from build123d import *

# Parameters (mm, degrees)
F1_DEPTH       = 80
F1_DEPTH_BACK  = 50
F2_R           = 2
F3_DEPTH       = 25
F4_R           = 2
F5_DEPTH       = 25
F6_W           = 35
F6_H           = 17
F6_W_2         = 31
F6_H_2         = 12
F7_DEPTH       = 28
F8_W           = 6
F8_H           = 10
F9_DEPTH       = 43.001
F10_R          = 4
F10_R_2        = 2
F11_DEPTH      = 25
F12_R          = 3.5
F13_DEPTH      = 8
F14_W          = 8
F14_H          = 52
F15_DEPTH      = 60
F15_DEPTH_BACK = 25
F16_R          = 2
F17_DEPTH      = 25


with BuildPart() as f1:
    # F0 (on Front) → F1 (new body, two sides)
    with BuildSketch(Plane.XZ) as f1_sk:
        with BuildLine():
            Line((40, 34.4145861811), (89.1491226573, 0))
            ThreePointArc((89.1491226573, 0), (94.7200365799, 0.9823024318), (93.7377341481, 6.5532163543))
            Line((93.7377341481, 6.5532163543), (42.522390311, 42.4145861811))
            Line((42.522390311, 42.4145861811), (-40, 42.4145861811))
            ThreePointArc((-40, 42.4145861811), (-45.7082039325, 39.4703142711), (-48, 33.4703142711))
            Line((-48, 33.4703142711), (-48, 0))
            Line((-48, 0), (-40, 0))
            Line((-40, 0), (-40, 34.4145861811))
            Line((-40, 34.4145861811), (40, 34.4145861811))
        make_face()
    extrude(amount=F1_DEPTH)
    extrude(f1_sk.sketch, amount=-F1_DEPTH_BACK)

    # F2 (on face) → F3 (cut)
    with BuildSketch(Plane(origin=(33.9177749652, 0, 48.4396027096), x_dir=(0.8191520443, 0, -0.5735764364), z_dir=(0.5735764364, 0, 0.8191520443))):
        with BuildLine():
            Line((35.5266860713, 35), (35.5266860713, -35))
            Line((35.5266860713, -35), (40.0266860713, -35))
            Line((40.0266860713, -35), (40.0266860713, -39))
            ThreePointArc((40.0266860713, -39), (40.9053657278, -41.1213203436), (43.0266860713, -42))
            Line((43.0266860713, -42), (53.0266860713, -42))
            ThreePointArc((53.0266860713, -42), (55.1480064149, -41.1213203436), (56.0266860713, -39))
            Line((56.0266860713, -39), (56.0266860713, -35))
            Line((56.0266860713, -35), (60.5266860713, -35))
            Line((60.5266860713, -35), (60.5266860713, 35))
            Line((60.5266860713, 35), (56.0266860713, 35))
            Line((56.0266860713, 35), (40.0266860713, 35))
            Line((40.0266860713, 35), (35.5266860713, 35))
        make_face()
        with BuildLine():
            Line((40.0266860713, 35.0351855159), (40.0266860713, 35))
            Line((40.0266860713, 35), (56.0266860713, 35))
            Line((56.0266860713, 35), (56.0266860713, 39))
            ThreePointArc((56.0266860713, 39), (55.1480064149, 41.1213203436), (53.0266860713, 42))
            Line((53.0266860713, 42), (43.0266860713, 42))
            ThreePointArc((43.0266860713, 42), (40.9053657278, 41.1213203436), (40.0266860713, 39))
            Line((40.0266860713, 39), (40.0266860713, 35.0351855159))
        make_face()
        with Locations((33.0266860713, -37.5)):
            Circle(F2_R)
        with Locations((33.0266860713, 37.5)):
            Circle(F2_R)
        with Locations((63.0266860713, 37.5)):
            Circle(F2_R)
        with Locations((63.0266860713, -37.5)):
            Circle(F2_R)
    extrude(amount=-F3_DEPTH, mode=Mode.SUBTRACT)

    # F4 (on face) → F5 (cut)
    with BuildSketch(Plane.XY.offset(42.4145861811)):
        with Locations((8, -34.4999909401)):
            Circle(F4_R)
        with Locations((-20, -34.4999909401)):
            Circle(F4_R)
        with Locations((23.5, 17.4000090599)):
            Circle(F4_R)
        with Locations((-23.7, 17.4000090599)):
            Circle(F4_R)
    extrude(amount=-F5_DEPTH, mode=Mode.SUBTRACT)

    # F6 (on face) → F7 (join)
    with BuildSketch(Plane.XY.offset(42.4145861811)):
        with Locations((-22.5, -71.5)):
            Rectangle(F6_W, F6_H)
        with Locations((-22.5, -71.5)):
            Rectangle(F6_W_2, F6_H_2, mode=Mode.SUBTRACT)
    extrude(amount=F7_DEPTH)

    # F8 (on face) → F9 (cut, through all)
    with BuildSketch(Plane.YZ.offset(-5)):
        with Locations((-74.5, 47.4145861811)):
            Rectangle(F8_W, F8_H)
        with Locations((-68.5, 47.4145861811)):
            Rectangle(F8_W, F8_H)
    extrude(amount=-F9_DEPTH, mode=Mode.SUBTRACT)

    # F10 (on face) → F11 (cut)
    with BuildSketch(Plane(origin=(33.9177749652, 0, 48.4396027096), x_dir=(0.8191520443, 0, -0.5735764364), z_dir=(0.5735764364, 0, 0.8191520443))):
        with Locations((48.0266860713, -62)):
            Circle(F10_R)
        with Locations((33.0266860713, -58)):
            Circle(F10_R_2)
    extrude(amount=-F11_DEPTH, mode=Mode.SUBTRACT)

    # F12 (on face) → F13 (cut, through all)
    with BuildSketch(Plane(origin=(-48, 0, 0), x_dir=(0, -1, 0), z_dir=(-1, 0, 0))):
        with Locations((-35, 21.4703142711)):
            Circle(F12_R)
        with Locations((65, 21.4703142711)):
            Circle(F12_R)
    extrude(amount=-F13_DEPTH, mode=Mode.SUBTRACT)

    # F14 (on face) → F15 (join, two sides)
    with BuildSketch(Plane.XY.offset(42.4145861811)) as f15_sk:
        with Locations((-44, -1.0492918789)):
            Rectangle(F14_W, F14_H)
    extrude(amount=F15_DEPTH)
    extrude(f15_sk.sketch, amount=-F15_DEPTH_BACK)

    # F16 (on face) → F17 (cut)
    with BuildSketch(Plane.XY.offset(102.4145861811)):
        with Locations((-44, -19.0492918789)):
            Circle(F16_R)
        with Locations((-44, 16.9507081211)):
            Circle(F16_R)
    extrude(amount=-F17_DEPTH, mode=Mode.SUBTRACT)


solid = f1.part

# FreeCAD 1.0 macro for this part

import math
import FreeCAD as App
import Part
import Sketcher
Q = App.Units.Quantity


def add_polygon(sketch, points):
    """Adds a closed chain of lines whose ends are joined by coincident constraints."""
    first, n = sketch.GeometryCount, len(points)
    for a, b in zip(points, points[1:] + points[:1]):
        sketch.addGeometry(Part.LineSegment(App.Vector(*a, 0), App.Vector(*b, 0)), False)
    for i in range(n):
        sketch.addConstraint(Sketcher.Constraint("Coincident", first + i, 2, first + (i + 1) % n, 1))

doc = App.newDocument("Part")
body = doc.addObject("PartDesign::Body", "Body")

sketch1 = body.newObject("Sketcher::SketchObject", "Sketch")
sketch1.AttachmentSupport = (doc.getObject("XZ_Plane"), [""])
sketch1.MapMode = "FlatFace"
sketch1.addGeometry(Part.LineSegment(App.Vector(40, 34.414586, 0), App.Vector(89.149123, 0, 0)), False)
sketch1.addGeometry(Part.ArcOfCircle(Part.Circle(App.Vector(91.443428, 3.276608, 0), App.Vector(0, 0, 1), 4), math.radians(-125), math.radians(55)), False)
sketch1.addGeometry(Part.LineSegment(App.Vector(93.737734, 6.553216, 0), App.Vector(42.52239, 42.414586, 0)), False)
sketch1.addGeometry(Part.LineSegment(App.Vector(42.52239, 42.414586, 0), App.Vector(-40, 42.414586, 0)), False)
sketch1.addGeometry(Part.ArcOfCircle(Part.Circle(App.Vector(-39, 33.470314, 0), App.Vector(0, 0, 1), 9), math.radians(96.37937), math.radians(180)), False)
sketch1.addGeometry(Part.LineSegment(App.Vector(-48, 33.470314, 0), App.Vector(-48, 0, 0)), False)
sketch1.addGeometry(Part.LineSegment(App.Vector(-48, 0, 0), App.Vector(-40, 0, 0)), False)
sketch1.addGeometry(Part.LineSegment(App.Vector(-40, 0, 0), App.Vector(-40, 34.414586, 0)), False)
sketch1.addGeometry(Part.LineSegment(App.Vector(-40, 34.414586, 0), App.Vector(40, 34.414586, 0)), False)
sketch1.addConstraint(Sketcher.Constraint("Tangent", 0, 2, 1, 1))
sketch1.addConstraint(Sketcher.Constraint("Tangent", 1, 2, 2, 1))
sketch1.addConstraint(Sketcher.Constraint("Coincident", 2, 2, 3, 1))
sketch1.addConstraint(Sketcher.Constraint("Coincident", 3, 2, 4, 1))
sketch1.addConstraint(Sketcher.Constraint("Tangent", 4, 2, 5, 1))
sketch1.addConstraint(Sketcher.Constraint("Coincident", 5, 2, 6, 1))
sketch1.addConstraint(Sketcher.Constraint("Coincident", 6, 2, 7, 1))
sketch1.addConstraint(Sketcher.Constraint("Coincident", 7, 2, 8, 1))
sketch1.addConstraint(Sketcher.Constraint("Coincident", 8, 2, 0, 1))
sketch1.addConstraint(Sketcher.Constraint("Horizontal", 3))
sketch1.addConstraint(Sketcher.Constraint("Vertical", 5))
sketch1.addConstraint(Sketcher.Constraint("Horizontal", 6))
sketch1.addConstraint(Sketcher.Constraint("Vertical", 7))
sketch1.addConstraint(Sketcher.Constraint("Horizontal", 8))
sketch1.addConstraint(Sketcher.Constraint("PointOnObject", 0, 2, -1))
sketch1.addConstraint(Sketcher.Constraint("PointOnObject", 5, 2, -1))
sketch1.addConstraint(Sketcher.Constraint("Parallel", 0, 2))
sketch1.addConstraint(Sketcher.Constraint("Vertical", 3, 2, 6, 2))
sketch1.addConstraint(Sketcher.Constraint("Radius", 1, 4.0))
sketch1.addConstraint(Sketcher.Constraint("Radius", 4, 9.0))
sketch1.addConstraint(Sketcher.Constraint("DistanceX", 6, 1, 6, 2, 8.0))
sketch1.addConstraint(Sketcher.Constraint("DistanceX", 8, 1, 8, 2, 80.0))
sketch1.addConstraint(Sketcher.Constraint("Angle", 0, Q("-35 deg")))
sketch1.addConstraint(Sketcher.Constraint("Distance", 0, 60.0))
sketch1.addConstraint(Sketcher.Constraint("DistanceX", 4, 3, -1, 1, 39.0))
sketch1.addConstraint(Sketcher.Constraint("DistanceY", 7, 2, 3, 2, 8.0))
pad1 = body.newObject("PartDesign::Pad", "Pad")
pad1.Profile = sketch1
pad1.Type = "TwoLengths"
pad1.Length = 80
pad1.Length2 = 50

sketch2 = body.newObject("Sketcher::SketchObject", "Sketch001")
sketch2.Placement = App.Placement(App.Vector(33.917775, 0, 48.439603), App.Rotation(App.Vector(0.819152044, 0, -0.573576436), App.Vector(0, 0.999999999, 0), App.Vector(0.573576436, 0, 0.819152044), "ZXY"))
sketch2.addGeometry(Part.LineSegment(App.Vector(35.526686, 35, 0), App.Vector(35.526686, -35, 0)), False)
sketch2.addGeometry(Part.LineSegment(App.Vector(35.526686, -35, 0), App.Vector(40.026686, -35, 0)), False)
sketch2.addGeometry(Part.LineSegment(App.Vector(40.026686, -35, 0), App.Vector(40.026686, -39, 0)), False)
sketch2.addGeometry(Part.ArcOfCircle(Part.Circle(App.Vector(43.026686, -39, 0), App.Vector(0, 0, 1), 3), math.radians(180), math.radians(270)), False)
sketch2.addGeometry(Part.LineSegment(App.Vector(43.026686, -42, 0), App.Vector(53.026686, -42, 0)), False)
sketch2.addGeometry(Part.ArcOfCircle(Part.Circle(App.Vector(53.026686, -39, 0), App.Vector(0, 0, 1), 3), math.radians(-90), math.radians(0)), False)
sketch2.addGeometry(Part.LineSegment(App.Vector(56.026686, -39, 0), App.Vector(56.026686, -35, 0)), False)
sketch2.addGeometry(Part.LineSegment(App.Vector(56.026686, -35, 0), App.Vector(60.526686, -35, 0)), False)
sketch2.addGeometry(Part.LineSegment(App.Vector(60.526686, -35, 0), App.Vector(60.526686, 35, 0)), False)
sketch2.addGeometry(Part.LineSegment(App.Vector(60.526686, 35, 0), App.Vector(56.026686, 35, 0)), False)
sketch2.addGeometry(Part.LineSegment(App.Vector(56.026686, 35, 0), App.Vector(56.026686, 39, 0)), False)
sketch2.addGeometry(Part.ArcOfCircle(Part.Circle(App.Vector(53.026686, 39, 0), App.Vector(0, 0, 1), 3), math.radians(0), math.radians(90)), False)
sketch2.addGeometry(Part.LineSegment(App.Vector(53.026686, 42, 0), App.Vector(43.026686, 42, 0)), False)
sketch2.addGeometry(Part.ArcOfCircle(Part.Circle(App.Vector(43.026686, 39, 0), App.Vector(0, 0, 1), 3), math.radians(90), math.radians(180)), False)
sketch2.addGeometry(Part.LineSegment(App.Vector(40.026686, 39, 0), App.Vector(40.026686, 35, 0)), False)
sketch2.addGeometry(Part.LineSegment(App.Vector(40.026686, 35, 0), App.Vector(35.526686, 35, 0)), False)
sketch2.addGeometry(Part.Circle(App.Vector(33.026686, -37.5, 0), App.Vector(0, 0, 1), 2), False)
sketch2.addGeometry(Part.Circle(App.Vector(33.026686, 37.5, 0), App.Vector(0, 0, 1), 2), False)
sketch2.addGeometry(Part.Circle(App.Vector(63.026686, 37.5, 0), App.Vector(0, 0, 1), 2), False)
sketch2.addGeometry(Part.Circle(App.Vector(63.026686, -37.5, 0), App.Vector(0, 0, 1), 2), False)
sketch2.addConstraint(Sketcher.Constraint("Coincident", 0, 2, 1, 1))
sketch2.addConstraint(Sketcher.Constraint("Coincident", 1, 2, 2, 1))
sketch2.addConstraint(Sketcher.Constraint("Tangent", 2, 2, 3, 1))
sketch2.addConstraint(Sketcher.Constraint("Tangent", 3, 2, 4, 1))
sketch2.addConstraint(Sketcher.Constraint("Tangent", 4, 2, 5, 1))
sketch2.addConstraint(Sketcher.Constraint("Tangent", 5, 2, 6, 1))
sketch2.addConstraint(Sketcher.Constraint("Coincident", 6, 2, 7, 1))
sketch2.addConstraint(Sketcher.Constraint("Coincident", 7, 2, 8, 1))
sketch2.addConstraint(Sketcher.Constraint("Coincident", 8, 2, 9, 1))
sketch2.addConstraint(Sketcher.Constraint("Coincident", 9, 2, 10, 1))
sketch2.addConstraint(Sketcher.Constraint("Tangent", 10, 2, 11, 1))
sketch2.addConstraint(Sketcher.Constraint("Tangent", 11, 2, 12, 1))
sketch2.addConstraint(Sketcher.Constraint("Tangent", 12, 2, 13, 1))
sketch2.addConstraint(Sketcher.Constraint("Tangent", 13, 2, 14, 1))
sketch2.addConstraint(Sketcher.Constraint("Coincident", 14, 2, 15, 1))
sketch2.addConstraint(Sketcher.Constraint("Coincident", 15, 2, 0, 1))
sketch2.addConstraint(Sketcher.Constraint("Vertical", 0))
sketch2.addConstraint(Sketcher.Constraint("Horizontal", 1))
sketch2.addConstraint(Sketcher.Constraint("Vertical", 2))
sketch2.addConstraint(Sketcher.Constraint("Horizontal", 4))
sketch2.addConstraint(Sketcher.Constraint("Vertical", 6))
sketch2.addConstraint(Sketcher.Constraint("Horizontal", 7))
sketch2.addConstraint(Sketcher.Constraint("Vertical", 8))
sketch2.addConstraint(Sketcher.Constraint("Horizontal", 9))
sketch2.addConstraint(Sketcher.Constraint("Vertical", 10))
sketch2.addConstraint(Sketcher.Constraint("Horizontal", 12))
sketch2.addConstraint(Sketcher.Constraint("Vertical", 14))
sketch2.addConstraint(Sketcher.Constraint("Horizontal", 15))
sketch2.addConstraint(Sketcher.Constraint("Equal", 3, 5))
sketch2.addConstraint(Sketcher.Constraint("Equal", 5, 11))
sketch2.addConstraint(Sketcher.Constraint("Equal", 11, 13))
sketch2.addConstraint(Sketcher.Constraint("Equal", 16, 17))
sketch2.addConstraint(Sketcher.Constraint("Equal", 17, 18))
sketch2.addConstraint(Sketcher.Constraint("Equal", 18, 19))
sketch2.addConstraint(Sketcher.Constraint("Symmetric", 5, 3, 11, 3, -1))
sketch2.addConstraint(Sketcher.Constraint("Symmetric", 16, 3, 17, 3, -1))
sketch2.addConstraint(Sketcher.Constraint("Symmetric", 18, 3, 19, 3, -1))
sketch2.addConstraint(Sketcher.Constraint("Symmetric", 1, 2, 14, 2, -1))
sketch2.addConstraint(Sketcher.Constraint("Horizontal", 17, 3, 18, 3))
sketch2.addConstraint(Sketcher.Constraint("Horizontal", 1, 2, 6, 2))
sketch2.addConstraint(Sketcher.Constraint("Horizontal", 9, 2, 14, 2))
sketch2.addConstraint(Sketcher.Constraint("Equal", 1, 7))
sketch2.addConstraint(Sketcher.Constraint("Diameter", 16, 4.0))
sketch2.addConstraint(Sketcher.Constraint("Radius", 3, 3.0))
sketch2.addConstraint(Sketcher.Constraint("DistanceX", 4, 1, 4, 2, 10.0))
sketch2.addConstraint(Sketcher.Constraint("DistanceY", 0, 2, 0, 1, 70.0))
sketch2.addConstraint(Sketcher.Constraint("DistanceY", 2, 2, 2, 1, 4.0))
sketch2.addConstraint(Sketcher.Constraint("DistanceX", 1, 1, 1, 2, 4.5))
sketch2.addConstraint(Sketcher.Constraint("DistanceX", 16, 3, 3, 3, 10.0))
sketch2.addConstraint(Sketcher.Constraint("DistanceY", 16, 3, 17, 3, 75.0))
sketch2.addConstraint(Sketcher.Constraint("DistanceX", 11, 3, 18, 3, 10.0))
sketch2.addConstraint(Sketcher.Constraint("DistanceX", -1, 1, 3, 3, 43.026686))
pocket1 = body.newObject("PartDesign::Pocket", "Pocket")
pocket1.Profile = sketch2
pocket1.Length = 25

sketch3 = body.newObject("Sketcher::SketchObject", "Sketch002")
sketch3.AttachmentSupport = (doc.getObject("XY_Plane"), [""])
sketch3.MapMode = "FlatFace"
sketch3.AttachmentOffset = App.Placement(App.Vector(0, 0, 42.414586), App.Rotation())
sketch3.addGeometry(Part.Circle(App.Vector(8, -34.499991, 0), App.Vector(0, 0, 1), 2), False)
sketch3.addGeometry(Part.Circle(App.Vector(-20, -34.499991, 0), App.Vector(0, 0, 1), 2), False)
sketch3.addGeometry(Part.Circle(App.Vector(23.5, 17.400009, 0), App.Vector(0, 0, 1), 2), False)
sketch3.addGeometry(Part.Circle(App.Vector(-23.7, 17.400009, 0), App.Vector(0, 0, 1), 2), False)
sketch3.addConstraint(Sketcher.Constraint("Equal", 0, 1))
sketch3.addConstraint(Sketcher.Constraint("Equal", 1, 2))
sketch3.addConstraint(Sketcher.Constraint("Equal", 2, 3))
sketch3.addConstraint(Sketcher.Constraint("Horizontal", 0, 3, 1, 3))
sketch3.addConstraint(Sketcher.Constraint("Horizontal", 2, 3, 3, 3))
sketch3.addConstraint(Sketcher.Constraint("Diameter", 0, 4.0))
sketch3.addConstraint(Sketcher.Constraint("DistanceX", -1, 1, 0, 3, 8.0))
sketch3.addConstraint(Sketcher.Constraint("DistanceX", 1, 3, -1, 1, 20.0))
sketch3.addConstraint(Sketcher.Constraint("DistanceX", -1, 1, 2, 3, 23.5))
sketch3.addConstraint(Sketcher.Constraint("DistanceX", 3, 3, -1, 1, 23.7))
sketch3.addConstraint(Sketcher.Constraint("DistanceY", 0, 3, 2, 3, 51.9))
sketch3.addConstraint(Sketcher.Constraint("DistanceY", 0, 3, -1, 1, 34.499991))
pocket2 = body.newObject("PartDesign::Pocket", "Pocket001")
pocket2.Profile = sketch3
pocket2.Length = 25

sketch4 = body.newObject("Sketcher::SketchObject", "Sketch003")
sketch4.AttachmentSupport = (doc.getObject("XY_Plane"), [""])
sketch4.MapMode = "FlatFace"
sketch4.AttachmentOffset = App.Placement(App.Vector(0, 0, 42.414586), App.Rotation())
add_polygon(sketch4, [(-40, -63), (-40, -80), (-5, -80), (-5, -63)])
add_polygon(sketch4, [(-7, -77.5), (-38, -77.5), (-38, -65.5), (-7, -65.5)])
sketch4.addConstraint(Sketcher.Constraint("Vertical", 0))
sketch4.addConstraint(Sketcher.Constraint("Horizontal", 1))
sketch4.addConstraint(Sketcher.Constraint("Vertical", 2))
sketch4.addConstraint(Sketcher.Constraint("Horizontal", 3))
sketch4.addConstraint(Sketcher.Constraint("Horizontal", 4))
sketch4.addConstraint(Sketcher.Constraint("Vertical", 5))
sketch4.addConstraint(Sketcher.Constraint("Horizontal", 6))
sketch4.addConstraint(Sketcher.Constraint("Vertical", 7))
sketch4.addConstraint(Sketcher.Constraint("DistanceX", 1, 1, 1, 2, 35.0))
sketch4.addConstraint(Sketcher.Constraint("DistanceX", 4, 2, 4, 1, 31.0))
sketch4.addConstraint(Sketcher.Constraint("DistanceY", 0, 2, 0, 1, 17.0))
sketch4.addConstraint(Sketcher.Constraint("DistanceY", 5, 1, 5, 2, 12.0))
sketch4.addConstraint(Sketcher.Constraint("DistanceX", 0, 2, -1, 1, 40.0))
sketch4.addConstraint(Sketcher.Constraint("DistanceY", 0, 2, -1, 1, 80.0))
sketch4.addConstraint(Sketcher.Constraint("DistanceX", 4, 2, -1, 1, 38.0))
sketch4.addConstraint(Sketcher.Constraint("DistanceY", 4, 2, -1, 1, 77.5))
pad2 = body.newObject("PartDesign::Pad", "Pad001")
pad2.Profile = sketch4
pad2.Length = 28

sketch5 = body.newObject("Sketcher::SketchObject", "Sketch004")
sketch5.AttachmentSupport = (doc.getObject("YZ_Plane"), [""])
sketch5.MapMode = "FlatFace"
sketch5.AttachmentOffset = App.Placement(App.Vector(0, 0, -5), App.Rotation())
add_polygon(sketch5, [(-77.5, 52.414586), (-77.5, 42.414586), (-65.5, 42.414586), (-65.5, 52.414586)])
sketch5.addConstraint(Sketcher.Constraint("Vertical", 0))
sketch5.addConstraint(Sketcher.Constraint("Horizontal", 1))
sketch5.addConstraint(Sketcher.Constraint("Vertical", 2))
sketch5.addConstraint(Sketcher.Constraint("Horizontal", 3))
sketch5.addConstraint(Sketcher.Constraint("DistanceX", 1, 1, 1, 2, 12.0))
sketch5.addConstraint(Sketcher.Constraint("DistanceY", 0, 2, 0, 1, 10.0))
sketch5.addConstraint(Sketcher.Constraint("DistanceX", 0, 2, -1, 1, 77.5))
sketch5.addConstraint(Sketcher.Constraint("DistanceY", -1, 1, 0, 2, 42.414586))
pocket3 = body.newObject("PartDesign::Pocket", "Pocket002")
pocket3.Profile = sketch5
pocket3.Type = "ThroughAll"

sketch6 = body.newObject("Sketcher::SketchObject", "Sketch005")
sketch6.Placement = App.Placement(App.Vector(33.917775, 0, 48.439603), App.Rotation(App.Vector(0.819152044, 0, -0.573576436), App.Vector(0, 0.999999999, 0), App.Vector(0.573576436, 0, 0.819152044), "ZXY"))
sketch6.addGeometry(Part.Circle(App.Vector(48.026686, -62, 0), App.Vector(0, 0, 1), 4), False)
sketch6.addGeometry(Part.Circle(App.Vector(33.026686, -58, 0), App.Vector(0, 0, 1), 2), False)
sketch6.addConstraint(Sketcher.Constraint("Diameter", 0, 8.0))
sketch6.addConstraint(Sketcher.Constraint("Diameter", 1, 4.0))
sketch6.addConstraint(Sketcher.Constraint("DistanceY", 0, 3, -1, 1, 62.0))
sketch6.addConstraint(Sketcher.Constraint("DistanceY", 1, 3, -1, 1, 58.0))
sketch6.addConstraint(Sketcher.Constraint("DistanceX", 1, 3, 0, 3, 15.0))
sketch6.addConstraint(Sketcher.Constraint("DistanceX", -1, 1, 0, 3, 48.026686))
pocket4 = body.newObject("PartDesign::Pocket", "Pocket003")
pocket4.Profile = sketch6
pocket4.Length = 25

sketch7 = body.newObject("Sketcher::SketchObject", "Sketch006")
sketch7.AttachmentSupport = (doc.getObject("YZ_Plane"), [""])
sketch7.MapMode = "FlatFace"
sketch7.AttachmentOffset = App.Placement(App.Vector(0, 0, -48), App.Rotation())
sketch7.addGeometry(Part.Circle(App.Vector(35, 21.470314, 0), App.Vector(0, 0, 1), 3.5), False)
sketch7.addGeometry(Part.Circle(App.Vector(-65, 21.470314, 0), App.Vector(0, 0, 1), 3.5), False)
sketch7.addConstraint(Sketcher.Constraint("Equal", 0, 1))
sketch7.addConstraint(Sketcher.Constraint("Horizontal", 0, 3, 1, 3))
sketch7.addConstraint(Sketcher.Constraint("Diameter", 0, 7.0))
sketch7.addConstraint(Sketcher.Constraint("DistanceX", -1, 1, 0, 3, 35.0))
sketch7.addConstraint(Sketcher.Constraint("DistanceX", 1, 3, -1, 1, 65.0))
sketch7.addConstraint(Sketcher.Constraint("DistanceY", -1, 1, 0, 3, 21.470314))
pocket5 = body.newObject("PartDesign::Pocket", "Pocket004")
pocket5.Profile = sketch7
pocket5.Length = 8
pocket5.Reversed = True

sketch8 = body.newObject("Sketcher::SketchObject", "Sketch007")
sketch8.AttachmentSupport = (doc.getObject("XY_Plane"), [""])
sketch8.MapMode = "FlatFace"
sketch8.AttachmentOffset = App.Placement(App.Vector(0, 0, 42.414586), App.Rotation())
add_polygon(sketch8, [(-48, 24.950708), (-48, -27.049292), (-40, -27.049292), (-40, 24.950708)])
sketch8.addConstraint(Sketcher.Constraint("Vertical", 0))
sketch8.addConstraint(Sketcher.Constraint("Horizontal", 1))
sketch8.addConstraint(Sketcher.Constraint("Vertical", 2))
sketch8.addConstraint(Sketcher.Constraint("Horizontal", 3))
sketch8.addConstraint(Sketcher.Constraint("DistanceX", 1, 1, 1, 2, 8.0))
sketch8.addConstraint(Sketcher.Constraint("DistanceY", 0, 2, 0, 1, 52.0))
sketch8.addConstraint(Sketcher.Constraint("DistanceX", 0, 2, -1, 1, 48.0))
sketch8.addConstraint(Sketcher.Constraint("DistanceY", 0, 2, -1, 1, 27.049292))
pad3 = body.newObject("PartDesign::Pad", "Pad002")
pad3.Profile = sketch8
pad3.Type = "TwoLengths"
pad3.Length = 60
pad3.Length2 = 25

sketch9 = body.newObject("Sketcher::SketchObject", "Sketch008")
sketch9.AttachmentSupport = (doc.getObject("XY_Plane"), [""])
sketch9.MapMode = "FlatFace"
sketch9.AttachmentOffset = App.Placement(App.Vector(0, 0, 102.414586), App.Rotation())
sketch9.addGeometry(Part.Circle(App.Vector(-44, -19.049292, 0), App.Vector(0, 0, 1), 2), False)
sketch9.addGeometry(Part.Circle(App.Vector(-44, 16.950708, 0), App.Vector(0, 0, 1), 2), False)
sketch9.addConstraint(Sketcher.Constraint("Equal", 0, 1))
sketch9.addConstraint(Sketcher.Constraint("Vertical", 0, 3, 1, 3))
sketch9.addConstraint(Sketcher.Constraint("Diameter", 0, 4.0))
sketch9.addConstraint(Sketcher.Constraint("DistanceX", 0, 3, -1, 1, 44.0))
sketch9.addConstraint(Sketcher.Constraint("DistanceY", 0, 3, 1, 3, 36.0))
sketch9.addConstraint(Sketcher.Constraint("DistanceY", 0, 3, -1, 1, 19.049292))
pocket6 = body.newObject("PartDesign::Pocket", "Pocket005")
pocket6.Profile = sketch9
pocket6.Length = 25

doc.recompute()
